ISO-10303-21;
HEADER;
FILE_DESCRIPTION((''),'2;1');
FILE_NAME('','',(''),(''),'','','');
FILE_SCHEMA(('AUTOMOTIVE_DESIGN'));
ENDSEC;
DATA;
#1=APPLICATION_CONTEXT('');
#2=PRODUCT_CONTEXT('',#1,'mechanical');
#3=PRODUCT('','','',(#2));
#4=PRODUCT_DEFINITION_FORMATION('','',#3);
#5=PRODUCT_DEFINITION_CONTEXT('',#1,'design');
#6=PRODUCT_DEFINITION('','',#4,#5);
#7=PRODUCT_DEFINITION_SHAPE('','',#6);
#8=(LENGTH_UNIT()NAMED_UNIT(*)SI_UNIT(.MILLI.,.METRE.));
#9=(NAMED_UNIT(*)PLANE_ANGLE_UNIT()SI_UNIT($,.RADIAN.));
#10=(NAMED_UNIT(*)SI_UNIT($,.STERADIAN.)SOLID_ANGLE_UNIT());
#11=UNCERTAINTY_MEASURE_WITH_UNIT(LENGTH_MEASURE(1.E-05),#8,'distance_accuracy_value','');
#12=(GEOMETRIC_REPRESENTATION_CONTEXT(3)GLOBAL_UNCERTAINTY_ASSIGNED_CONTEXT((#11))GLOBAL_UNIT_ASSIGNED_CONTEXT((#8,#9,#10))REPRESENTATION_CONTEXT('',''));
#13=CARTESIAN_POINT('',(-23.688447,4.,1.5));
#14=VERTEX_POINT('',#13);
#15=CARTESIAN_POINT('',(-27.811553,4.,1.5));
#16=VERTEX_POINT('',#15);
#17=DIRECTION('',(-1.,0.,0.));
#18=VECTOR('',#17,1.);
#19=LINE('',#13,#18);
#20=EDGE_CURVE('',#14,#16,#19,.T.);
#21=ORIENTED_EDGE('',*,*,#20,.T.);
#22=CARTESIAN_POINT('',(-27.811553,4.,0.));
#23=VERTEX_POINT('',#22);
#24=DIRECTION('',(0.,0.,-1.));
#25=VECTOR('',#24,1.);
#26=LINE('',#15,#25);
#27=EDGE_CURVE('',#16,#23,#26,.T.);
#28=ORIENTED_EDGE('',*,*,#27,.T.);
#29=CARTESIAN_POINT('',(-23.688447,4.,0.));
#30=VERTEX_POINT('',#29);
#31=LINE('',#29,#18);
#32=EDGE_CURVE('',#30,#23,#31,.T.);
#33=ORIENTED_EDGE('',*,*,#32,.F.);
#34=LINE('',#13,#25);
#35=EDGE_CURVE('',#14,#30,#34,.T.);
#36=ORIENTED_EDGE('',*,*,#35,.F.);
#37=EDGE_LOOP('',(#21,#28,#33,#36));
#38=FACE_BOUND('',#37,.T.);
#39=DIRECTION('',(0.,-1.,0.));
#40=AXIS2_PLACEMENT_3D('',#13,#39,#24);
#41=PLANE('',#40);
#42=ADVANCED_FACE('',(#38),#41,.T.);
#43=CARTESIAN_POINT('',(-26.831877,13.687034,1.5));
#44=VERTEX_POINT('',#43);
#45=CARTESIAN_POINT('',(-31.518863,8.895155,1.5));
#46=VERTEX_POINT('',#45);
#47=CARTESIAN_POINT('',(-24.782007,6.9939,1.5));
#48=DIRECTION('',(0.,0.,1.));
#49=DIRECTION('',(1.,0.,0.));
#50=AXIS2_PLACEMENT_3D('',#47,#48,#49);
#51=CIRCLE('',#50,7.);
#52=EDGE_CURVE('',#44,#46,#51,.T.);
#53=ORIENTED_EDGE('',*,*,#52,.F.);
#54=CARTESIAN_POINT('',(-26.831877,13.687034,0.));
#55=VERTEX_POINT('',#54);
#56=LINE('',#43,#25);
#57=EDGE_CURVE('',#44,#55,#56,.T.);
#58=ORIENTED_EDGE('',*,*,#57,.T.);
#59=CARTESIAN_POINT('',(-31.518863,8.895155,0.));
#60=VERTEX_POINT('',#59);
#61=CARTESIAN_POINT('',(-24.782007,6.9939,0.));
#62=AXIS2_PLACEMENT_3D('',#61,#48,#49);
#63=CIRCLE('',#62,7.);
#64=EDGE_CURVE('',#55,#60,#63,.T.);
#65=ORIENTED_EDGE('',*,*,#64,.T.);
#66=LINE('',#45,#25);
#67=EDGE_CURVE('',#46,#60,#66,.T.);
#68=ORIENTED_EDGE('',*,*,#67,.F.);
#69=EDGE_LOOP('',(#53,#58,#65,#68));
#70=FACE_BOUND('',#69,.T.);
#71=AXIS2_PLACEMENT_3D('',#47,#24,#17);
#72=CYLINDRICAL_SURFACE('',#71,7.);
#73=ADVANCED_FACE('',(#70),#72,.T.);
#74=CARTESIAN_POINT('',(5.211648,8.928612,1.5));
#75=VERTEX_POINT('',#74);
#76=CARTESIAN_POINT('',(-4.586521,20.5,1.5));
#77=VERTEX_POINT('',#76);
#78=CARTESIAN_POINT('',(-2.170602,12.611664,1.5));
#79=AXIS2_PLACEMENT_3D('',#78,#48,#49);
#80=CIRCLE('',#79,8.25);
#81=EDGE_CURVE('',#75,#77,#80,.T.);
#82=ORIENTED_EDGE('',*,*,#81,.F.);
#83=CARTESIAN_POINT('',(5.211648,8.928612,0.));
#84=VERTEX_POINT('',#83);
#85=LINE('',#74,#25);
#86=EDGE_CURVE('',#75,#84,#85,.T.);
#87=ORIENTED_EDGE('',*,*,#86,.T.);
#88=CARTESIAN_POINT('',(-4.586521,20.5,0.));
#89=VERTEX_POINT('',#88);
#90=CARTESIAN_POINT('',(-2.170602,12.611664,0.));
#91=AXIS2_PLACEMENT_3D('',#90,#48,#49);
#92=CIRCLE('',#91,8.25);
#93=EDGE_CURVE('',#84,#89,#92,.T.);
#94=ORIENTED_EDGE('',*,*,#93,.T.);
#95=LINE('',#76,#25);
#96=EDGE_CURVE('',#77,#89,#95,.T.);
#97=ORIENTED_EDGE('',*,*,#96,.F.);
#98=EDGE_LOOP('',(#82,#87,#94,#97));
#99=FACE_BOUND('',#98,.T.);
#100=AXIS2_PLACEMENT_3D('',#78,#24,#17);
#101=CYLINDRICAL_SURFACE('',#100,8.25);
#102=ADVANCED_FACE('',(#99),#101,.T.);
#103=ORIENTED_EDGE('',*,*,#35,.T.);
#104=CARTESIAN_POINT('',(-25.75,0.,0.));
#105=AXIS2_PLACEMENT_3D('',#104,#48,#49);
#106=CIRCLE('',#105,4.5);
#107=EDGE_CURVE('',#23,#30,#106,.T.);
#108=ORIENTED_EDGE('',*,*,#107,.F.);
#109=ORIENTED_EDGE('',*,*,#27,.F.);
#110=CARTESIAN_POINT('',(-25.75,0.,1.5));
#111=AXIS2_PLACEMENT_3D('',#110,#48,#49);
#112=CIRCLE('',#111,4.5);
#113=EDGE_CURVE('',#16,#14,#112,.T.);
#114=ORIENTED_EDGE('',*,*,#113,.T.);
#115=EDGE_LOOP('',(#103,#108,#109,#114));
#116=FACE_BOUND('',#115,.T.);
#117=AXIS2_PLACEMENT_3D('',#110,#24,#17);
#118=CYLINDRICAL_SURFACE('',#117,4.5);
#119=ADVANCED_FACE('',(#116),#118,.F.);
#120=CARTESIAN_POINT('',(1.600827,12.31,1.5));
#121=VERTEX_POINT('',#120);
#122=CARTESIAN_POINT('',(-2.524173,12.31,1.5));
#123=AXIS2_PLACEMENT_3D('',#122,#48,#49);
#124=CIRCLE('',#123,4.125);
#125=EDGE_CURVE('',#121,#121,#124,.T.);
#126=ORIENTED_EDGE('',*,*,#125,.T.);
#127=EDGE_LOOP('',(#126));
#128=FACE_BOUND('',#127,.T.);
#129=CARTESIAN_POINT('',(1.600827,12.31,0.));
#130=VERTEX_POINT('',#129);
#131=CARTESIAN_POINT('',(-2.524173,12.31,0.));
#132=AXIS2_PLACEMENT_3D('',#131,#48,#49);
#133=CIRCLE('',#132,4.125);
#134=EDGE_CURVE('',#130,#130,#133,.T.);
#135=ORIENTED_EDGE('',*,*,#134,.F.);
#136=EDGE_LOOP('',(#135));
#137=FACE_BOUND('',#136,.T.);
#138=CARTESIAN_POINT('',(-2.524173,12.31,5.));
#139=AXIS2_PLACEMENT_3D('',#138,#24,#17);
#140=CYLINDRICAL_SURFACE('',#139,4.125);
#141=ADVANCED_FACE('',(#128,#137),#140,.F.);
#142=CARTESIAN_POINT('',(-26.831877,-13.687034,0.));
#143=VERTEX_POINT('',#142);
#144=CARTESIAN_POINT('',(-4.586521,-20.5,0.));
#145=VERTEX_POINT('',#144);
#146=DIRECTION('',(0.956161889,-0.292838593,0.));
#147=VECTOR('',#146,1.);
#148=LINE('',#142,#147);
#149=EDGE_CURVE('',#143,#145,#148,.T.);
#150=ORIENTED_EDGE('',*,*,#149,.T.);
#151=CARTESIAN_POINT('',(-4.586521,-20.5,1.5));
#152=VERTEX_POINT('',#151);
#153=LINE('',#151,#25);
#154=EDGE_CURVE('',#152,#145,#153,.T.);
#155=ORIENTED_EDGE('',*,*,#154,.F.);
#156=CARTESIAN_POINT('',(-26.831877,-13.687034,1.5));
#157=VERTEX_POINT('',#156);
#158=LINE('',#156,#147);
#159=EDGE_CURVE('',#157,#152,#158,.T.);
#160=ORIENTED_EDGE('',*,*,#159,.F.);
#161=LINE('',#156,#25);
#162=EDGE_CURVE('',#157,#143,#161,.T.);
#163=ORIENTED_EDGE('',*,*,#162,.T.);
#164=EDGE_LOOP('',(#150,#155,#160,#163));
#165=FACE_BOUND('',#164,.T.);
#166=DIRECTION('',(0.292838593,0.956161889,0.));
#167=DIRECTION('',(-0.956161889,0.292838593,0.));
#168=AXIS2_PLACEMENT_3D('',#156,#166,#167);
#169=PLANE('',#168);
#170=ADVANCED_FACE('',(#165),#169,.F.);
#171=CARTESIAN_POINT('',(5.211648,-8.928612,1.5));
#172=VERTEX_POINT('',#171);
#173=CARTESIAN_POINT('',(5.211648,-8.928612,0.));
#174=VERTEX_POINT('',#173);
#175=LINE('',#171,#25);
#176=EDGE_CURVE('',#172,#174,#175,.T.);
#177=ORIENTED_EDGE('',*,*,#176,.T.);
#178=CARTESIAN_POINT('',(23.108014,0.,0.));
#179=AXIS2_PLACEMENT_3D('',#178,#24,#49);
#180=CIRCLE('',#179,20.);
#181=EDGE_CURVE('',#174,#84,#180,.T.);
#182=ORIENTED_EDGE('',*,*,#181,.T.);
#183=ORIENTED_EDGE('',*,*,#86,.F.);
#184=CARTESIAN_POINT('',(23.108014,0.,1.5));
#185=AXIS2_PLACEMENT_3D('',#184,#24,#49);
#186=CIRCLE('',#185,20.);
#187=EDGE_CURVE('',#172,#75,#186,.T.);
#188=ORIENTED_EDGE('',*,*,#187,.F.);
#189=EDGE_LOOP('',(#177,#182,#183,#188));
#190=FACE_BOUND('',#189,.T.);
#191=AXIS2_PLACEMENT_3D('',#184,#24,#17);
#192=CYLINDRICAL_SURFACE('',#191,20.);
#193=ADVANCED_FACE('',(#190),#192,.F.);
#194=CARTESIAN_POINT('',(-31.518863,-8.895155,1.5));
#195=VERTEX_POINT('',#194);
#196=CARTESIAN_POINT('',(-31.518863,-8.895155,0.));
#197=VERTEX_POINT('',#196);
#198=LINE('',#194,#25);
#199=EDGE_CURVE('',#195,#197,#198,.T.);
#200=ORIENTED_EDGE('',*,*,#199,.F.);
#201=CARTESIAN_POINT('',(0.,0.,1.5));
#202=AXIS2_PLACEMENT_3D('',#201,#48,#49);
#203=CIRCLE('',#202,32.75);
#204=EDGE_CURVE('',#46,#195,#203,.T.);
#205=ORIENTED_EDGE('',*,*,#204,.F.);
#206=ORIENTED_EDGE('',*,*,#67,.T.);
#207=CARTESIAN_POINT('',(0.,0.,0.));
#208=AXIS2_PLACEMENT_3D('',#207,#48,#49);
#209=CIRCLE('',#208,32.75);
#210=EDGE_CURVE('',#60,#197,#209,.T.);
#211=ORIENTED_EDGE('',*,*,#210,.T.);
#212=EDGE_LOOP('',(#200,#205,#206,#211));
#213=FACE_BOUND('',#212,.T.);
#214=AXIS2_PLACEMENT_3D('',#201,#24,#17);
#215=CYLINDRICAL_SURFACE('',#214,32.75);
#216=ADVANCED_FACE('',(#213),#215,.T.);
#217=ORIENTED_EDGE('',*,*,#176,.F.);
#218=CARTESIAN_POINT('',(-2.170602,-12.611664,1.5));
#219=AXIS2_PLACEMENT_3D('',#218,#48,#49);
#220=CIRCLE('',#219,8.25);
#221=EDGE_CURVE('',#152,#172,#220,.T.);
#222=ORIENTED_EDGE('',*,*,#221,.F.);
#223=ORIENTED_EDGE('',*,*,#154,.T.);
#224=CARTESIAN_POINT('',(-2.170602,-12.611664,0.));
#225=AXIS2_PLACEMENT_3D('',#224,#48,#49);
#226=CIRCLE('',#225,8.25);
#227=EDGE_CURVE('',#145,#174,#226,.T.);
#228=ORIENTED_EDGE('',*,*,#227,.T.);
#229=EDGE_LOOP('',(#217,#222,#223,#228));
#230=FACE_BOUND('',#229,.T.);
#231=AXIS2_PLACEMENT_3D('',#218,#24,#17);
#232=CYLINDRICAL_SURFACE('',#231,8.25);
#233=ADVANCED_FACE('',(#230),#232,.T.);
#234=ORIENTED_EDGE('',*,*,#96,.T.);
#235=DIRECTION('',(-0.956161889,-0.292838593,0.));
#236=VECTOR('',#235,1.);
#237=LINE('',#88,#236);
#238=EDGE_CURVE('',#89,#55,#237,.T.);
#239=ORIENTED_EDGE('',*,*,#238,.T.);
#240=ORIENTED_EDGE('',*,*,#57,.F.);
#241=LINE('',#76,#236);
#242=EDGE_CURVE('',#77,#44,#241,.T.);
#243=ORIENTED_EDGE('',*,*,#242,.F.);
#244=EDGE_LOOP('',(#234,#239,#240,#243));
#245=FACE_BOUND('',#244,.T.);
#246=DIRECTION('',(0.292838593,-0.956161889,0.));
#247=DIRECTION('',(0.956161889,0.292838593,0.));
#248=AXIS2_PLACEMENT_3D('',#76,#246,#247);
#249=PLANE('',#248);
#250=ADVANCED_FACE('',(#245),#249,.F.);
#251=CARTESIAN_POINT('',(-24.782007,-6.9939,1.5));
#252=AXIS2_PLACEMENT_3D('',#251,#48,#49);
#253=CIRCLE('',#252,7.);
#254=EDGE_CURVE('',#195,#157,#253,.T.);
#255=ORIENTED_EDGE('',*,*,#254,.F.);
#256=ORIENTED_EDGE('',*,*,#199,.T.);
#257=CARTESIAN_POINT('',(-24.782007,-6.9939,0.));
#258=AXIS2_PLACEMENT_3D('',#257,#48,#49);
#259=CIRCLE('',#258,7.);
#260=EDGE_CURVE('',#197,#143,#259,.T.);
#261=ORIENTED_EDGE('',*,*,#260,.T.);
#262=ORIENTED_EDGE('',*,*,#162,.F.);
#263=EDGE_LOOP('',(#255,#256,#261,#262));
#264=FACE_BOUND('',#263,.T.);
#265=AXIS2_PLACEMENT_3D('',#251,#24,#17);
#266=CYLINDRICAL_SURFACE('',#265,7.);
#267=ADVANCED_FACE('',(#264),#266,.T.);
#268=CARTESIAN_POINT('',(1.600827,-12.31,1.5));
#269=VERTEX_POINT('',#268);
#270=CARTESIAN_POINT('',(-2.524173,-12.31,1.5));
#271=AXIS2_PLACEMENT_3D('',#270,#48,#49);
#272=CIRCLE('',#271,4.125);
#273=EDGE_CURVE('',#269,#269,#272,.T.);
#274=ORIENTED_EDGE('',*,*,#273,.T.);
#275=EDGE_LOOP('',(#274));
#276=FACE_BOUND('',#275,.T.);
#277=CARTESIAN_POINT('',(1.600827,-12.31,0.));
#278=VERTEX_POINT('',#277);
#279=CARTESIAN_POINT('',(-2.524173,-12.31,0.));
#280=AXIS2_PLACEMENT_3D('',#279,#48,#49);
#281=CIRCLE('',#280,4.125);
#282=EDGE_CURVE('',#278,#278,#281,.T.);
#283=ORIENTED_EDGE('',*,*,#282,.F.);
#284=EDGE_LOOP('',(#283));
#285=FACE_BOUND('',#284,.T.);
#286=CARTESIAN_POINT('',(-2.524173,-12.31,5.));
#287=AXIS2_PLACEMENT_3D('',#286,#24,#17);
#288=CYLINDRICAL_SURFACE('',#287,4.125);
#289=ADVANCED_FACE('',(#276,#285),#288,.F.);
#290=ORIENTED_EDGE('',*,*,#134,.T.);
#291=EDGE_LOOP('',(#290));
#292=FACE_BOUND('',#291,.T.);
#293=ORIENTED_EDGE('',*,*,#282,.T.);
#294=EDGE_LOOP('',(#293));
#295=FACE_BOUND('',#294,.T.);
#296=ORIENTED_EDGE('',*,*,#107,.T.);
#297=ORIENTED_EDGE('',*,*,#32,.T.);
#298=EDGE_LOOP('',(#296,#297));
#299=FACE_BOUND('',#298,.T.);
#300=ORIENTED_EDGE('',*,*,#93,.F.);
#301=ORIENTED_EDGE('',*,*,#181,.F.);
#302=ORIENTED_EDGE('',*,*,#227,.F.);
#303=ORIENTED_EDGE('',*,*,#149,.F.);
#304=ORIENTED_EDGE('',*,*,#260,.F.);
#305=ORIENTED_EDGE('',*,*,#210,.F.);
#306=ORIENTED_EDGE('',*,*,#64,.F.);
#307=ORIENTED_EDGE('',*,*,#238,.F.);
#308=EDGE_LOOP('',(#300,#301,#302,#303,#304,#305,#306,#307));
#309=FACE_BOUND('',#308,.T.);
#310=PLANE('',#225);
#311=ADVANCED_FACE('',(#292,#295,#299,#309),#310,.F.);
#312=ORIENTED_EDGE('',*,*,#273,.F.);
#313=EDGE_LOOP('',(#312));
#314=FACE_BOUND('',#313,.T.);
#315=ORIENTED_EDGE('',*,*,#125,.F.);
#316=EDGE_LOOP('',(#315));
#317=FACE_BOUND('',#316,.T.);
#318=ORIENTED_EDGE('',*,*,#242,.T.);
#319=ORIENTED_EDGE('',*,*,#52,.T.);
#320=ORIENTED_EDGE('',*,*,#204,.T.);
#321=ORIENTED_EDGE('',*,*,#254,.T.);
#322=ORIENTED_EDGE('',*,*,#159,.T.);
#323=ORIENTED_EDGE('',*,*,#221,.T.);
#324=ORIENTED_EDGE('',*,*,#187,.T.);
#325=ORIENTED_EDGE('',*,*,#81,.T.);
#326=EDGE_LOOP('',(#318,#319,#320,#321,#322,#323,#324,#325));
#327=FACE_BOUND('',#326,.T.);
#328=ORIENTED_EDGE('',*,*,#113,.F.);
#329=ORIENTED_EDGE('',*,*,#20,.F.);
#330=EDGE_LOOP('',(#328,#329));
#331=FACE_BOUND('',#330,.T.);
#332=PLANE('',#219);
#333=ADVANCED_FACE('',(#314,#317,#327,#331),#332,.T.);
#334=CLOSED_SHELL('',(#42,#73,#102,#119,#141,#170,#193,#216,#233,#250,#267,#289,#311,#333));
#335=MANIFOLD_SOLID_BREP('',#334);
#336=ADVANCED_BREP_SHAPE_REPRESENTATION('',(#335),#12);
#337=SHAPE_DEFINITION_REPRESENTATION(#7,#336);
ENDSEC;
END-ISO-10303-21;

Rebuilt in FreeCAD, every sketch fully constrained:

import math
import FreeCAD as App
import Part
import Sketcher

doc = App.newDocument("Part")
params = doc.addObject("Spreadsheet::Sheet", "Params")
for row, (alias, value) in enumerate([
    ("sketch1_radius", "7 mm"),
    ("sketch1_radius2", "20 mm"),
    ("sketch1_radius3", "4.5 mm"),
    ("sketch1_radius4", "32.75 mm"),
    ("sketch1_radius5", "8.25 mm"),
    ("pad1_length", "1.5 mm"),
    ("sketch2_diameter", "8.25 mm"),
    ("pocket1_length", "10 mm"),
], start=1):
    params.set(f"A{row}", alias)
    params.set(f"B{row}", "=" + value)
    params.setAlias(f"B{row}", alias)

body = doc.addObject("PartDesign::Body", "Body")

sketch1 = body.newObject("Sketcher::SketchObject", "Sketch")
sketch1.AttachmentSupport = (doc.getObject("XY_Plane"), [""])
sketch1.MapMode = "FlatFace"
sketch1.addGeometry([
    Part.LineSegment(App.Vector(-4.586521, 20.5, 0), App.Vector(-26.831877, 13.687034, 0)),
    Part.ArcOfCircle(Part.Circle(App.Vector(-24.782007, 6.9939, 0), App.Vector(0, 0, 1), 7), math.radians(107.027975), math.radians(164.240038)),
    Part.ArcOfCircle(Part.Circle(App.Vector(0, 0, 0), App.Vector(0, 0, 1), 32.75), math.radians(164.240038), math.radians(195.759962)),
    Part.ArcOfCircle(Part.Circle(App.Vector(-24.782007, -6.9939, 0), App.Vector(0, 0, 1), 7), math.radians(-164.240038), math.radians(-107.027975)),
    Part.LineSegment(App.Vector(-26.831877, -13.687034, 0), App.Vector(-4.586521, -20.5, 0)),
    Part.ArcOfCircle(Part.Circle(App.Vector(-2.170602, -12.611664, 0), App.Vector(0, 0, 1), 8.25), math.radians(-107.027975), math.radians(26.514904)),
    Part.ArcOfCircle(Part.Circle(App.Vector(23.108014, 0, 0), App.Vector(0, 0, 1), 20), math.radians(153.485096), math.radians(206.514904)),
    Part.ArcOfCircle(Part.Circle(App.Vector(-2.170602, 12.611664, 0), App.Vector(0, 0, 1), 8.25), math.radians(-26.514904), math.radians(107.027975)),
    Part.LineSegment(App.Vector(-27.811553, 4, 0), App.Vector(-23.688447, 4, 0)),
    Part.ArcOfCircle(Part.Circle(App.Vector(-25.75, 0, 0), App.Vector(0, 0, 1), 4.5), math.radians(117.266044), math.radians(422.733956)),
], False)
sketch1.addConstraint([
    Sketcher.Constraint("Tangent", 0, 2, 1, 1),
    Sketcher.Constraint("Tangent", 1, 2, 2, 1),
    Sketcher.Constraint("Tangent", 2, 2, 3, 1),
    Sketcher.Constraint("Tangent", 3, 2, 4, 1),
    Sketcher.Constraint("Tangent", 4, 2, 5, 1),
    Sketcher.Constraint("Tangent", 5, 2, 6, 2),
    Sketcher.Constraint("Tangent", 6, 1, 7, 1),
    Sketcher.Constraint("Tangent", 7, 2, 0, 1),
    Sketcher.Constraint("Coincident", 8, 1, 9, 1),
    Sketcher.Constraint("Coincident", 9, 2, 8, 2),
    Sketcher.Constraint("Horizontal", 8),
    Sketcher.Constraint("Coincident", 2, 3, -1, 1),
    Sketcher.Constraint("Equal", 1, 3),
    Sketcher.Constraint("Equal", 5, 7),
    Sketcher.Constraint("Symmetric", 5, 3, 7, 3, -1),
    Sketcher.Constraint("PointOnObject", 9, 3, -1),
    Sketcher.Constraint("Vertical", 1, 3, 3, 3),
    Sketcher.Constraint("Radius", 1, 7.0),
    Sketcher.Constraint("Radius", 6, 20.0),
    Sketcher.Constraint("Radius", 9, 4.5),
    Sketcher.Constraint("Radius", 2, 32.75),
    Sketcher.Constraint("Radius", 5, 8.25),
    Sketcher.Constraint("DistanceY", -1, 1, 8, 1, 4.0),
    Sketcher.Constraint("DistanceY", 4, 2, -1, 1, 20.5),
    Sketcher.Constraint("DistanceX", 9, 3, -1, 1, 25.75),
    Sketcher.Constraint("DistanceY", -1, 1, 1, 3, 6.9939),
    Sketcher.Constraint("Distance", 0, 23.265261),
])
sketch1.setExpression("Constraints[17]", "Params.sketch1_radius")
sketch1.setExpression("Constraints[18]", "Params.sketch1_radius2")
sketch1.setExpression("Constraints[19]", "Params.sketch1_radius3")
sketch1.setExpression("Constraints[20]", "Params.sketch1_radius4")
sketch1.setExpression("Constraints[21]", "Params.sketch1_radius5")
pad1 = body.newObject("PartDesign::Pad", "Pad")
pad1.Profile = sketch1
pad1.setExpression("Length", "Params.pad1_length")

sketch2 = body.newObject("Sketcher::SketchObject", "Sketch001")
sketch2.AttachmentSupport = (doc.getObject("XY_Plane"), [""])
sketch2.MapMode = "FlatFace"
sketch2.addGeometry([
    Part.Circle(App.Vector(-2.524173, -12.31, 0), App.Vector(0, 0, 1), 4.125),
    Part.Circle(App.Vector(-2.524173, 12.31, 0), App.Vector(0, 0, 1), 4.125),
], False)
sketch2.addConstraint([
    Sketcher.Constraint("Equal", 0, 1),
    Sketcher.Constraint("Symmetric", 0, 3, 1, 3, -1),
    Sketcher.Constraint("Diameter", 0, 8.25),
    Sketcher.Constraint("DistanceY", 0, 3, -1, 1, 12.31),
    Sketcher.Constraint("DistanceX", 0, 3, -1, 1, 2.524173),
])
sketch2.setExpression("Constraints[2]", "Params.sketch2_diameter")
pocket1 = body.newObject("PartDesign::Pocket", "Pocket")
pocket1.Profile = sketch2
pocket1.setExpression("Length", "Params.pocket1_length")
pocket1.Midplane = True

doc.recompute()
